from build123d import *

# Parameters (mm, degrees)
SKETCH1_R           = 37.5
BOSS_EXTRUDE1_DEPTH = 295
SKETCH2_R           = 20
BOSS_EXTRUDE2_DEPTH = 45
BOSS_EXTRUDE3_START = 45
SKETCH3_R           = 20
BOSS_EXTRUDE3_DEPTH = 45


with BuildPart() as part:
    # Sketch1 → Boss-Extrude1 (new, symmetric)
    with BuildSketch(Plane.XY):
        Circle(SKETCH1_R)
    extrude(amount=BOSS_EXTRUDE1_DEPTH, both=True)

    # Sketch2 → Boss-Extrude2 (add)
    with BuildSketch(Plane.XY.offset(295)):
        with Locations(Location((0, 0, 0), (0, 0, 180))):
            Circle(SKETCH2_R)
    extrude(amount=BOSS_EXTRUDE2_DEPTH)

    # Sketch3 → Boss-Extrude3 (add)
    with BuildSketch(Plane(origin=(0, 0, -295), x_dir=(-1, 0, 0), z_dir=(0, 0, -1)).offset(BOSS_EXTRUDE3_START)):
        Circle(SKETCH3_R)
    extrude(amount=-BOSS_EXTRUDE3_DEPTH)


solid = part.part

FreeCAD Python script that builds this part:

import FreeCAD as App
import Part
import Sketcher

V = App.Vector

doc = App.newDocument("Part")
body = doc.addObject("PartDesign::Body", "Body")

sketch1 = doc.addObject("Sketcher::SketchObject", "Sketch")
body.addObject(sketch1)
sketch1.AttachmentSupport = (doc.XY_Plane, [""])
sketch1.MapMode = "FlatFace"
sketch1.addGeometry(Part.Circle(V(0, 0, 0), V(0, 0, 1), 38), False)
sketch1.addConstraint(Sketcher.Constraint("Coincident", 0, 3, -1, 1))
sketch1.addConstraint(Sketcher.Constraint("Diameter", 0, 75.0))
pad1 = doc.addObject("PartDesign::Pad", "Pad")
body.addObject(pad1)
pad1.Profile = sketch1
pad1.Length = 590
pad1.Midplane = True

sketch2 = doc.addObject("Sketcher::SketchObject", "Sketch001")
body.addObject(sketch2)
sketch2.AttachmentSupport = (doc.XY_Plane, [""])
sketch2.MapMode = "FlatFace"
sketch2.AttachmentOffset = App.Placement(V(0, 0, 295), App.Rotation())
sketch2.addGeometry(Part.Circle(V(0, 0, 0), V(0, 0, 1), 20), False)
sketch2.addConstraint(Sketcher.Constraint("Coincident", 0, 3, -1, 1))
sketch2.addConstraint(Sketcher.Constraint("Diameter", 0, 40.0))
pad2 = doc.addObject("PartDesign::Pad", "Pad001")
body.addObject(pad2)
pad2.Profile = sketch2
pad2.Length = 45

sketch3 = doc.addObject("Sketcher::SketchObject", "Sketch002")
body.addObject(sketch3)
sketch3.AttachmentSupport = (doc.XY_Plane, [""])
sketch3.MapMode = "FlatFace"
sketch3.AttachmentOffset = App.Placement(V(0, 0, -340), App.Rotation())
sketch3.addGeometry(Part.Circle(V(0, 0, 0), V(0, 0, 1), 20), False)
sketch3.addConstraint(Sketcher.Constraint("Coincident", 0, 3, -1, 1))
sketch3.addConstraint(Sketcher.Constraint("Diameter", 0, 40.0))
pad3 = doc.addObject("PartDesign::Pad", "Pad002")
body.addObject(pad3)
pad3.Profile = sketch3
pad3.Length = 45

doc.recompute()
